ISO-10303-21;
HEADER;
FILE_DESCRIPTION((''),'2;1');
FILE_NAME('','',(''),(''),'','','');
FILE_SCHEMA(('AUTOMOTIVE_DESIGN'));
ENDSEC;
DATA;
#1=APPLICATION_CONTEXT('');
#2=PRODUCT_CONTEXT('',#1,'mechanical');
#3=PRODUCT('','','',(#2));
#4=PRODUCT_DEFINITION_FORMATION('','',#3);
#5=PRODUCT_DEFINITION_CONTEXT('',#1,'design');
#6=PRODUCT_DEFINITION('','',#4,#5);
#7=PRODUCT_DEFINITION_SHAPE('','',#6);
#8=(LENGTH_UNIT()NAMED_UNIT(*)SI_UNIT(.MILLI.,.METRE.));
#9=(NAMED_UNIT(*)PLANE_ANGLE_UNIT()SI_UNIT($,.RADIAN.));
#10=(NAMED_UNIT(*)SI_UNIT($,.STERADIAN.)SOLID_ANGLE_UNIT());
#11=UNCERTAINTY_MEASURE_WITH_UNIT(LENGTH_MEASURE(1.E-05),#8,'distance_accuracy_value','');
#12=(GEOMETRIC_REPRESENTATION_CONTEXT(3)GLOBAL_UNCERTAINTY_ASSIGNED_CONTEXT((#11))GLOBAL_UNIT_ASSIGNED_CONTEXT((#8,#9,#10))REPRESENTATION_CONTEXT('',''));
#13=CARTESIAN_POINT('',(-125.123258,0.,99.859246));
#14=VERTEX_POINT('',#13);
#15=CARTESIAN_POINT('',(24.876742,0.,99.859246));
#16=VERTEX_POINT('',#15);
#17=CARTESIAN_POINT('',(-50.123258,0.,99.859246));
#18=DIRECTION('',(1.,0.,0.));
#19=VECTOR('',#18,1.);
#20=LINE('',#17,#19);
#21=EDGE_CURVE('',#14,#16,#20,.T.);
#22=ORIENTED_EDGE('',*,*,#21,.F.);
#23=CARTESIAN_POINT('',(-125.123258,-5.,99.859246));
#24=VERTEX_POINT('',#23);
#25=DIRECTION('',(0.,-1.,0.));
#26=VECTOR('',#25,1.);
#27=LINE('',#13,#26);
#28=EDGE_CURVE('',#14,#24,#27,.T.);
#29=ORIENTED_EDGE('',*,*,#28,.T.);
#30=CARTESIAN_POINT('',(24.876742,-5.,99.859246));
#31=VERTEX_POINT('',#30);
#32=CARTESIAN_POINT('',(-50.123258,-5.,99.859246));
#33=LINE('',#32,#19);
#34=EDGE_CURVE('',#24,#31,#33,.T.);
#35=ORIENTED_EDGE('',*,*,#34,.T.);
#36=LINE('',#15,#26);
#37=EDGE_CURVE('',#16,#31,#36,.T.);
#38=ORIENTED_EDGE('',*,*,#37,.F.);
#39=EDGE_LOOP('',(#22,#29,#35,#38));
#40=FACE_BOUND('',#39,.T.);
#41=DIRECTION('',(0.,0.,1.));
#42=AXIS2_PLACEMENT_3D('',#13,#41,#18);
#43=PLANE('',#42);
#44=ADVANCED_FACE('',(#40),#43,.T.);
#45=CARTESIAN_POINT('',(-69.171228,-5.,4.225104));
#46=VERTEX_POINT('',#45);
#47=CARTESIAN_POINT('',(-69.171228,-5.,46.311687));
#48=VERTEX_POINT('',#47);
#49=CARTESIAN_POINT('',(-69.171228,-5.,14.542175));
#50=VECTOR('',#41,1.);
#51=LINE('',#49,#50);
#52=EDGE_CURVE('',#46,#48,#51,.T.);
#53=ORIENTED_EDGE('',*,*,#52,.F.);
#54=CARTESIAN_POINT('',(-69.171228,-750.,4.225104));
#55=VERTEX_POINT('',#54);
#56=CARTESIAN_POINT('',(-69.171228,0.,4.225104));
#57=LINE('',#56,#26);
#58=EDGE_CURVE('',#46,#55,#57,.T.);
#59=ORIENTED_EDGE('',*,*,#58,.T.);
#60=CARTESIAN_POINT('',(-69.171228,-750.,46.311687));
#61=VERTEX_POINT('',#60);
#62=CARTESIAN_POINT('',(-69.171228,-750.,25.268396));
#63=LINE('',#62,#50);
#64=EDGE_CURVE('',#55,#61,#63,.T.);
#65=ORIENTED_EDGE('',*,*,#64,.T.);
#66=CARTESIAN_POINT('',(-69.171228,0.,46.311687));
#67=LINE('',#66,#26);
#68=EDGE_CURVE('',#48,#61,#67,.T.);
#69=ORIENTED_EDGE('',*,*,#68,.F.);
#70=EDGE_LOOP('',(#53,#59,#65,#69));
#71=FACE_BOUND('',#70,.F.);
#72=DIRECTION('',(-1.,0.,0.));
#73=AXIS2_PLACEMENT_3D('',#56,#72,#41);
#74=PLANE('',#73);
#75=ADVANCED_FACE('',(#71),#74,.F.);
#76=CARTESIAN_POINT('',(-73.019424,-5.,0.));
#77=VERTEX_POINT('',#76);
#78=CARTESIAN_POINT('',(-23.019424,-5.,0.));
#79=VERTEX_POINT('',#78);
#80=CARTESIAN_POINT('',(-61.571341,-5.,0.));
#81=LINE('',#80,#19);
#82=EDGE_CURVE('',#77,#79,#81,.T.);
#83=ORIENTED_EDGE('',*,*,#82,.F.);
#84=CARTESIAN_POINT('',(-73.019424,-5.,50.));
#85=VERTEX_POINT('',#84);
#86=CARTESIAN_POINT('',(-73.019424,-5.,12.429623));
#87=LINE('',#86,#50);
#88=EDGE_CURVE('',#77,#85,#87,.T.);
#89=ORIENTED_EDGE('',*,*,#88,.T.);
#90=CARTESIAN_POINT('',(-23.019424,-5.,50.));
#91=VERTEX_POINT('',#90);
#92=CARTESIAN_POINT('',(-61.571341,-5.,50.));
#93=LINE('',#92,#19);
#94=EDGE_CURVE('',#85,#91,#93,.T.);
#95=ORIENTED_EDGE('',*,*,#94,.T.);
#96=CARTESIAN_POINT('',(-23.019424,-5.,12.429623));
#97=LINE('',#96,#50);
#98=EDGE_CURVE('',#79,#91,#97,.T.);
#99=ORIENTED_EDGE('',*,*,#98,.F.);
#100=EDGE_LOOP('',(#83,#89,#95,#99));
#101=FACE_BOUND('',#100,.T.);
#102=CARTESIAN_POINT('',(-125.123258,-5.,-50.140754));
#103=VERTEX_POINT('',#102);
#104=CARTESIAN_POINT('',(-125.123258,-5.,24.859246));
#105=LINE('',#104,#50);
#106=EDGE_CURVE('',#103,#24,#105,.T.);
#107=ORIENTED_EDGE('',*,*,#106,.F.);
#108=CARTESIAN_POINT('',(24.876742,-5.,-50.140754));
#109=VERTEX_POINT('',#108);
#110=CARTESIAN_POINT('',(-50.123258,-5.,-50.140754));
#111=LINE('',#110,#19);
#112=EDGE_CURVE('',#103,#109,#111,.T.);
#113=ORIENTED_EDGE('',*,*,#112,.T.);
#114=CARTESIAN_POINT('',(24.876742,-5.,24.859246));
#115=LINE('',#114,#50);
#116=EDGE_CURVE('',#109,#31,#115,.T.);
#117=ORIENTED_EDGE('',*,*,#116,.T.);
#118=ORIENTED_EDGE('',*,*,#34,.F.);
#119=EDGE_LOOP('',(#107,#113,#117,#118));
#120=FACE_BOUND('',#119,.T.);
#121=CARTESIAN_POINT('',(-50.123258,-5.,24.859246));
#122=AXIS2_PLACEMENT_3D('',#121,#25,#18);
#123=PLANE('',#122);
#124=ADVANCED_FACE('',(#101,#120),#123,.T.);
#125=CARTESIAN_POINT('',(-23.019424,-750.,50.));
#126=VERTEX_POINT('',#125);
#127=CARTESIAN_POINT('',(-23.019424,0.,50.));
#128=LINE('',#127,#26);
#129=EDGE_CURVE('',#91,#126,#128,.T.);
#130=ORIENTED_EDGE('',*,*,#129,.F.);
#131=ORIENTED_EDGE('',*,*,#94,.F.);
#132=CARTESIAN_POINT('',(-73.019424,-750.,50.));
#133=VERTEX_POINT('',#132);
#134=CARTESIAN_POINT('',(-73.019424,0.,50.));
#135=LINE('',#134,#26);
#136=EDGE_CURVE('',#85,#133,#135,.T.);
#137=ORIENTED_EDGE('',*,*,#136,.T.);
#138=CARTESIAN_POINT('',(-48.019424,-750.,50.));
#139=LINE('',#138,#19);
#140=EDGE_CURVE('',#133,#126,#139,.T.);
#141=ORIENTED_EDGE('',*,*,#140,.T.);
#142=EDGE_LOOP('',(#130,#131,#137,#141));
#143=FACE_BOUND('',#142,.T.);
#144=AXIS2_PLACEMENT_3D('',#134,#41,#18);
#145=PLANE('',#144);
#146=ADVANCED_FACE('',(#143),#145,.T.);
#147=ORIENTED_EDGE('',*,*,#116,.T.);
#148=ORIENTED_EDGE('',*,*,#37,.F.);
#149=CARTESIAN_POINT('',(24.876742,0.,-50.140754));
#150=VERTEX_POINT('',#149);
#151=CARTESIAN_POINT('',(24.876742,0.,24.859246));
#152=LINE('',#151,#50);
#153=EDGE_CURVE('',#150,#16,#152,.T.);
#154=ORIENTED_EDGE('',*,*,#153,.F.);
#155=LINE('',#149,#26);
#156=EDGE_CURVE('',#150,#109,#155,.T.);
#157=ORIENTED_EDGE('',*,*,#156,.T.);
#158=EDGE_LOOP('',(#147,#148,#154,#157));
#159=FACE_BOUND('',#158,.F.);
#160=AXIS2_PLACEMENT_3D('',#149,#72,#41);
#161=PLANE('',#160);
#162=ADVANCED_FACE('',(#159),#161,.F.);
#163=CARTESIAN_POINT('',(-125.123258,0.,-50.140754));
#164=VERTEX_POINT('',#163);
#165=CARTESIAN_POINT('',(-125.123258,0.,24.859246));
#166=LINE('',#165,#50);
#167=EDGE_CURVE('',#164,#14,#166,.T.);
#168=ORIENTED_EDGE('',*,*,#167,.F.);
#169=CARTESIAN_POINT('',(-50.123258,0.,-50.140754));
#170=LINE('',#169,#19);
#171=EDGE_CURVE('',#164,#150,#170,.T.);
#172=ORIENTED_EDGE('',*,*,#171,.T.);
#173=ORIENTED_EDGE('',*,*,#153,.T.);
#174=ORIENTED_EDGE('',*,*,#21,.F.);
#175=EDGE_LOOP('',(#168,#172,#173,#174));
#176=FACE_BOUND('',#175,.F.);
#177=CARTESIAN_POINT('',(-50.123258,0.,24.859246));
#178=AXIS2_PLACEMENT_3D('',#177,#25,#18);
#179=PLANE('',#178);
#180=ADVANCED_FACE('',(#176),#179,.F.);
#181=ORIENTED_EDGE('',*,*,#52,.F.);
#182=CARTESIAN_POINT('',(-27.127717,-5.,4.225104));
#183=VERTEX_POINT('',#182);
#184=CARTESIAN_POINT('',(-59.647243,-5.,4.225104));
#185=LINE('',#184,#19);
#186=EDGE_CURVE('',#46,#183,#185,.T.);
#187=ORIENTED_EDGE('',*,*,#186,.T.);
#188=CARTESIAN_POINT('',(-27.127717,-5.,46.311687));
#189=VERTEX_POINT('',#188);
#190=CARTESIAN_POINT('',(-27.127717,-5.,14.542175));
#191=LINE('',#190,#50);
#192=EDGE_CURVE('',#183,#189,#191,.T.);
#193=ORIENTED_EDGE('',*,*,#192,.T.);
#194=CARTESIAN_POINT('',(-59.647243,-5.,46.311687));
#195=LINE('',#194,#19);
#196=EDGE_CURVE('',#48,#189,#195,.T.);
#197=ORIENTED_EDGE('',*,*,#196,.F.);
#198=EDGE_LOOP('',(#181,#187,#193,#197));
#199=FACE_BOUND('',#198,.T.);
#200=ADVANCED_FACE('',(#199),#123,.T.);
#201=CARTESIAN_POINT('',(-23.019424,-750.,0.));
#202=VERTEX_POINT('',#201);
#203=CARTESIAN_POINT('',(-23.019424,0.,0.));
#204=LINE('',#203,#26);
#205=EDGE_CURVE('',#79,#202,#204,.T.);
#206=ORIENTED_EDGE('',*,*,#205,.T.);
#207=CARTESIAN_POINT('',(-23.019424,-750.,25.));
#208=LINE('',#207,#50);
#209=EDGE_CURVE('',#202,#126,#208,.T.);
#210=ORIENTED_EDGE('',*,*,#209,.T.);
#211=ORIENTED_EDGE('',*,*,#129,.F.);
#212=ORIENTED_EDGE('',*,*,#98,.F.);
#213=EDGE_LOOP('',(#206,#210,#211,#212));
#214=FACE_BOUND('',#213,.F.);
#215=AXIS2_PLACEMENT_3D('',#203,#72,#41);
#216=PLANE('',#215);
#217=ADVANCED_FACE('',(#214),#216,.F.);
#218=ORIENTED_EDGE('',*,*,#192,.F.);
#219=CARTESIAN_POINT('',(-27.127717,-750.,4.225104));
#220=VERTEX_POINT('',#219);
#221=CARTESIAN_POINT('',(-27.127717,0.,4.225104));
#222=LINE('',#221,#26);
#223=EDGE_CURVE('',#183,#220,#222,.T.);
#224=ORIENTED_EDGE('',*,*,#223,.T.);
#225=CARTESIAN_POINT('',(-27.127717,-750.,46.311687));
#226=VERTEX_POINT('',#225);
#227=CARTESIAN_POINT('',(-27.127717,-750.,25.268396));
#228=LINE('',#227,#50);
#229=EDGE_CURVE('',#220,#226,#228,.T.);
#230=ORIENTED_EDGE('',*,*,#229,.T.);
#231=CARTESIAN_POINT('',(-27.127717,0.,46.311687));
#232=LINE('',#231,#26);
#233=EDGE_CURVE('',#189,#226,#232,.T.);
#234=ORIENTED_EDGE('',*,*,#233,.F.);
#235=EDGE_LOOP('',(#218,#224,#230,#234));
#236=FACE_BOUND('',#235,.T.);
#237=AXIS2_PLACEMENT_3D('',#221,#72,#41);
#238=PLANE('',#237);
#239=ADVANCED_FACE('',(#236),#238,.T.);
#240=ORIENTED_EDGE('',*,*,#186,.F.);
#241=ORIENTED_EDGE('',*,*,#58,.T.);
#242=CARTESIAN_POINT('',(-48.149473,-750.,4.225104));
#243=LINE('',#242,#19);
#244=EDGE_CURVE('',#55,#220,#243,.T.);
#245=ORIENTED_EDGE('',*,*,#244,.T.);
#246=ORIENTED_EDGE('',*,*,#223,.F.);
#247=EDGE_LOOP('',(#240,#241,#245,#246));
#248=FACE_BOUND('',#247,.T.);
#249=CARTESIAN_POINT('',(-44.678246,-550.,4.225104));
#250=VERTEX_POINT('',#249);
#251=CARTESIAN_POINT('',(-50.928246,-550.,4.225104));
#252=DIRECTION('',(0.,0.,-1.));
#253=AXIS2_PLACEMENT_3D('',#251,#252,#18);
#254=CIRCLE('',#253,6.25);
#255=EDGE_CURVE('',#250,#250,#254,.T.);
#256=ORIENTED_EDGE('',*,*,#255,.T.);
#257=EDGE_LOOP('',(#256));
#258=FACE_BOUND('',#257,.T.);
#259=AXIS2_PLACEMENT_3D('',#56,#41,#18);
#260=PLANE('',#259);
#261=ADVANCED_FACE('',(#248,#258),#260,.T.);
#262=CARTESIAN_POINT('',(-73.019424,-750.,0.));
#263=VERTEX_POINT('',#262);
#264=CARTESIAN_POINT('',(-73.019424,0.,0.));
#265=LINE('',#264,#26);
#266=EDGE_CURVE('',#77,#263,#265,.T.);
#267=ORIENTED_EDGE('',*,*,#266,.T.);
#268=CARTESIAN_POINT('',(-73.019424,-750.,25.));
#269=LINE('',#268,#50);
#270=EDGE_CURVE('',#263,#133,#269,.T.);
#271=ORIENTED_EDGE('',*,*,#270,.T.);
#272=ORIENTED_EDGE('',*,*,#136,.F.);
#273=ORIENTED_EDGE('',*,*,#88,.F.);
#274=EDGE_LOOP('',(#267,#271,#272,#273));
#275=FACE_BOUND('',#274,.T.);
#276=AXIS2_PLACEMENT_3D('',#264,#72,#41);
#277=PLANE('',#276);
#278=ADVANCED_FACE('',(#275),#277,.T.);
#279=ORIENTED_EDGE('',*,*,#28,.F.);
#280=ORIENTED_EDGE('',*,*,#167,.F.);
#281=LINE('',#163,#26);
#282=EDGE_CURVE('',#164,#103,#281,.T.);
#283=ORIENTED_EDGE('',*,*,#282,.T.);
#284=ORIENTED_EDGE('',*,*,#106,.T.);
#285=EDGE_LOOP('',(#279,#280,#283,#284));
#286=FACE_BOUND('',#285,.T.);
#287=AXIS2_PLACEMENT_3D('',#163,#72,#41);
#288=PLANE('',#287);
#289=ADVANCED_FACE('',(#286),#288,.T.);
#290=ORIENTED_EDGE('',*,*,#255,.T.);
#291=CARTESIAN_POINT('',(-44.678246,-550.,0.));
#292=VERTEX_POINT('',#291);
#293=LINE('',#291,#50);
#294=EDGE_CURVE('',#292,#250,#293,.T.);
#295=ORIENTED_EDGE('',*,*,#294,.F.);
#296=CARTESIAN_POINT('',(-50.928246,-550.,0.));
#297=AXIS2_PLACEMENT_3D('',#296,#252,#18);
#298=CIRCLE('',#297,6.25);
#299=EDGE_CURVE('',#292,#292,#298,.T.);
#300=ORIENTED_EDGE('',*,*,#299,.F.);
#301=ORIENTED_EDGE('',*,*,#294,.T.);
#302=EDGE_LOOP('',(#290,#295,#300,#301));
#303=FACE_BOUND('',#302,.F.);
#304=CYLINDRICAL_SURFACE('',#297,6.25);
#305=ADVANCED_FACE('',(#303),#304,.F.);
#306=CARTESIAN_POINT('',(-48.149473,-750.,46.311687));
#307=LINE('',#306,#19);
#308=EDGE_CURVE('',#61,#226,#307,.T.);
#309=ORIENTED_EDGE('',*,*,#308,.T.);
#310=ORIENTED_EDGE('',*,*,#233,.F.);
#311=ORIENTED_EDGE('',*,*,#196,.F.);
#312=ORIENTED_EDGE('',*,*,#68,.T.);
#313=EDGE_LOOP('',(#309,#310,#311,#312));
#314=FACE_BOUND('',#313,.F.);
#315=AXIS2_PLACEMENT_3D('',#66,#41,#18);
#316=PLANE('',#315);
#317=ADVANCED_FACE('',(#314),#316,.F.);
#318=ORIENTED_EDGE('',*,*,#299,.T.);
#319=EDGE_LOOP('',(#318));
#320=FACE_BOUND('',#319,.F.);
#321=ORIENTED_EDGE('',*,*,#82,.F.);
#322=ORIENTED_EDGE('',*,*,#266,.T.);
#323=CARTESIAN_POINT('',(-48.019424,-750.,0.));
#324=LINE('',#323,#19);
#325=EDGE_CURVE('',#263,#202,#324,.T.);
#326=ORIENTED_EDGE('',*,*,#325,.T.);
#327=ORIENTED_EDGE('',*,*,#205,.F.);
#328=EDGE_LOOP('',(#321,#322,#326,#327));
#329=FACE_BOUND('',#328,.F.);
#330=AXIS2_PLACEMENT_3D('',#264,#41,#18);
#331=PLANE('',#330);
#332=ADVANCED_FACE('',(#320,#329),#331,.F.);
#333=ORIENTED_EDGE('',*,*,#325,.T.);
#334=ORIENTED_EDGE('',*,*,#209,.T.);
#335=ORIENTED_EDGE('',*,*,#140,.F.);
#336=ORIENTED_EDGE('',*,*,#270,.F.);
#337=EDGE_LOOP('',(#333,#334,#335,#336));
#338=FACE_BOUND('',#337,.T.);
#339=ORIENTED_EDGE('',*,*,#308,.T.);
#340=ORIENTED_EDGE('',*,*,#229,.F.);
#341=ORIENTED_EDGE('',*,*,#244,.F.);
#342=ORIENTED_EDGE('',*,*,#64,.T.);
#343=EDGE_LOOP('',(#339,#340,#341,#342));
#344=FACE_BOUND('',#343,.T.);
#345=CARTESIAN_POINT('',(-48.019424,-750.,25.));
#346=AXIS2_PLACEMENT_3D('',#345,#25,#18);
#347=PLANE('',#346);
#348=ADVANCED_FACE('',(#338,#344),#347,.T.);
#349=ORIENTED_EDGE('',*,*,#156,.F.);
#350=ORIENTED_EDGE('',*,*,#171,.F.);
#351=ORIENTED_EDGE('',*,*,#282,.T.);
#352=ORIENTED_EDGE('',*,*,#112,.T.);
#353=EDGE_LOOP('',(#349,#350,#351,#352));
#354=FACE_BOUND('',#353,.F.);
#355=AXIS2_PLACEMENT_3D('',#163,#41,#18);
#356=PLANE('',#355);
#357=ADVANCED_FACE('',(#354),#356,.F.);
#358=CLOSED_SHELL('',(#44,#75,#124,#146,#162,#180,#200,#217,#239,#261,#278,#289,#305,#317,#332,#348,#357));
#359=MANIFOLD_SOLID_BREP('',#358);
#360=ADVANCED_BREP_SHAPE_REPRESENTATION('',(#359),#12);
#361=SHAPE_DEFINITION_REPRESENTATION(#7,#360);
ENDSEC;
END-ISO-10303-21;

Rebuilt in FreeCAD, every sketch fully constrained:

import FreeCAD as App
import Part
import Sketcher


def add_polygon(sketch, points):
    """Adds a closed chain of lines whose ends are joined by coincident constraints."""
    first, n = sketch.GeometryCount, len(points)
    for a, b in zip(points, points[1:] + points[:1]):
        sketch.addGeometry(Part.LineSegment(App.Vector(*a, 0), App.Vector(*b, 0)), False)
    for i in range(n):
        sketch.addConstraint(Sketcher.Constraint("Coincident", first + i, 2, first + (i + 1) % n, 1))

doc = App.newDocument("Part")
body = doc.addObject("PartDesign::Body", "Body")

sketch1 = body.newObject("Sketcher::SketchObject", "Sketch")
sketch1.AttachmentSupport = (doc.getObject("XZ_Plane"), [""])
sketch1.MapMode = "FlatFace"
add_polygon(sketch1, [(-73, 50), (-73, 0), (-23, 0), (-23, 50)])
add_polygon(sketch1, [(-27, 4), (-69, 4), (-69, 46), (-27, 46)])
sketch1.addConstraint([
    Sketcher.Constraint("Vertical", 0),
    Sketcher.Constraint("Horizontal", 1),
    Sketcher.Constraint("Vertical", 2),
    Sketcher.Constraint("Horizontal", 3),
    Sketcher.Constraint("Horizontal", 4),
    Sketcher.Constraint("Vertical", 5),
    Sketcher.Constraint("Horizontal", 6),
    Sketcher.Constraint("Vertical", 7),
    Sketcher.Constraint("PointOnObject", 0, 2, -1),
    Sketcher.Constraint("Equal", 3, 0),
    Sketcher.Constraint("DistanceX", 1, 1, 1, 2, 50.0),
    Sketcher.Constraint("DistanceX", 4, 2, 4, 1, 42.043511),
    Sketcher.Constraint("DistanceY", 5, 1, 5, 2, 42.086583),
    Sketcher.Constraint("DistanceX", 4, 2, -1, 1, 69.171228),
    Sketcher.Constraint("DistanceX", 0, 2, -1, 1, 73.019424),
    Sketcher.Constraint("DistanceY", -1, 1, 4, 2, 4.225104),
])
pad1 = body.newObject("PartDesign::Pad", "Pad")
pad1.Profile = sketch1
pad1.Length = 750

sketch2 = body.newObject("Sketcher::SketchObject", "Sketch001")
sketch2.AttachmentSupport = (doc.getObject("XZ_Plane"), [""])
sketch2.MapMode = "FlatFace"
add_polygon(sketch2, [(-125, 100), (-125, -50), (25, -50), (25, 100)])
sketch2.addConstraint([
    Sketcher.Constraint("Vertical", 0),
    Sketcher.Constraint("Horizontal", 1),
    Sketcher.Constraint("Vertical", 2),
    Sketcher.Constraint("Horizontal", 3),
    Sketcher.Constraint("Equal", 3, 0),
    Sketcher.Constraint("DistanceX", 1, 1, 1, 2, 150.0),
    Sketcher.Constraint("DistanceX", 0, 2, -1, 1, 125.123258),
    Sketcher.Constraint("DistanceY", 0, 2, -1, 1, 50.140754),
])
pad2 = body.newObject("PartDesign::Pad", "Pad001")
pad2.Profile = sketch2
pad2.Length = 5

sketch3 = body.newObject("Sketcher::SketchObject", "Sketch002")
sketch3.AttachmentSupport = (doc.getObject("XY_Plane"), [""])
sketch3.MapMode = "FlatFace"
sketch3.addGeometry(Part.Circle(App.Vector(-51, -550, 0), App.Vector(0, 0, 1), 6), False)
sketch3.addConstraint([
    Sketcher.Constraint("Diameter", 0, 12.5),
    Sketcher.Constraint("DistanceY", 0, 3, -1, 1, 550.0),
    Sketcher.Constraint("DistanceX", 0, 3, -1, 1, 50.928246),
])
pocket1 = body.newObject("PartDesign::Pocket", "Pocket")
pocket1.Profile = sketch3
pocket1.Length = 25
pocket1.Reversed = True

doc.recompute()
